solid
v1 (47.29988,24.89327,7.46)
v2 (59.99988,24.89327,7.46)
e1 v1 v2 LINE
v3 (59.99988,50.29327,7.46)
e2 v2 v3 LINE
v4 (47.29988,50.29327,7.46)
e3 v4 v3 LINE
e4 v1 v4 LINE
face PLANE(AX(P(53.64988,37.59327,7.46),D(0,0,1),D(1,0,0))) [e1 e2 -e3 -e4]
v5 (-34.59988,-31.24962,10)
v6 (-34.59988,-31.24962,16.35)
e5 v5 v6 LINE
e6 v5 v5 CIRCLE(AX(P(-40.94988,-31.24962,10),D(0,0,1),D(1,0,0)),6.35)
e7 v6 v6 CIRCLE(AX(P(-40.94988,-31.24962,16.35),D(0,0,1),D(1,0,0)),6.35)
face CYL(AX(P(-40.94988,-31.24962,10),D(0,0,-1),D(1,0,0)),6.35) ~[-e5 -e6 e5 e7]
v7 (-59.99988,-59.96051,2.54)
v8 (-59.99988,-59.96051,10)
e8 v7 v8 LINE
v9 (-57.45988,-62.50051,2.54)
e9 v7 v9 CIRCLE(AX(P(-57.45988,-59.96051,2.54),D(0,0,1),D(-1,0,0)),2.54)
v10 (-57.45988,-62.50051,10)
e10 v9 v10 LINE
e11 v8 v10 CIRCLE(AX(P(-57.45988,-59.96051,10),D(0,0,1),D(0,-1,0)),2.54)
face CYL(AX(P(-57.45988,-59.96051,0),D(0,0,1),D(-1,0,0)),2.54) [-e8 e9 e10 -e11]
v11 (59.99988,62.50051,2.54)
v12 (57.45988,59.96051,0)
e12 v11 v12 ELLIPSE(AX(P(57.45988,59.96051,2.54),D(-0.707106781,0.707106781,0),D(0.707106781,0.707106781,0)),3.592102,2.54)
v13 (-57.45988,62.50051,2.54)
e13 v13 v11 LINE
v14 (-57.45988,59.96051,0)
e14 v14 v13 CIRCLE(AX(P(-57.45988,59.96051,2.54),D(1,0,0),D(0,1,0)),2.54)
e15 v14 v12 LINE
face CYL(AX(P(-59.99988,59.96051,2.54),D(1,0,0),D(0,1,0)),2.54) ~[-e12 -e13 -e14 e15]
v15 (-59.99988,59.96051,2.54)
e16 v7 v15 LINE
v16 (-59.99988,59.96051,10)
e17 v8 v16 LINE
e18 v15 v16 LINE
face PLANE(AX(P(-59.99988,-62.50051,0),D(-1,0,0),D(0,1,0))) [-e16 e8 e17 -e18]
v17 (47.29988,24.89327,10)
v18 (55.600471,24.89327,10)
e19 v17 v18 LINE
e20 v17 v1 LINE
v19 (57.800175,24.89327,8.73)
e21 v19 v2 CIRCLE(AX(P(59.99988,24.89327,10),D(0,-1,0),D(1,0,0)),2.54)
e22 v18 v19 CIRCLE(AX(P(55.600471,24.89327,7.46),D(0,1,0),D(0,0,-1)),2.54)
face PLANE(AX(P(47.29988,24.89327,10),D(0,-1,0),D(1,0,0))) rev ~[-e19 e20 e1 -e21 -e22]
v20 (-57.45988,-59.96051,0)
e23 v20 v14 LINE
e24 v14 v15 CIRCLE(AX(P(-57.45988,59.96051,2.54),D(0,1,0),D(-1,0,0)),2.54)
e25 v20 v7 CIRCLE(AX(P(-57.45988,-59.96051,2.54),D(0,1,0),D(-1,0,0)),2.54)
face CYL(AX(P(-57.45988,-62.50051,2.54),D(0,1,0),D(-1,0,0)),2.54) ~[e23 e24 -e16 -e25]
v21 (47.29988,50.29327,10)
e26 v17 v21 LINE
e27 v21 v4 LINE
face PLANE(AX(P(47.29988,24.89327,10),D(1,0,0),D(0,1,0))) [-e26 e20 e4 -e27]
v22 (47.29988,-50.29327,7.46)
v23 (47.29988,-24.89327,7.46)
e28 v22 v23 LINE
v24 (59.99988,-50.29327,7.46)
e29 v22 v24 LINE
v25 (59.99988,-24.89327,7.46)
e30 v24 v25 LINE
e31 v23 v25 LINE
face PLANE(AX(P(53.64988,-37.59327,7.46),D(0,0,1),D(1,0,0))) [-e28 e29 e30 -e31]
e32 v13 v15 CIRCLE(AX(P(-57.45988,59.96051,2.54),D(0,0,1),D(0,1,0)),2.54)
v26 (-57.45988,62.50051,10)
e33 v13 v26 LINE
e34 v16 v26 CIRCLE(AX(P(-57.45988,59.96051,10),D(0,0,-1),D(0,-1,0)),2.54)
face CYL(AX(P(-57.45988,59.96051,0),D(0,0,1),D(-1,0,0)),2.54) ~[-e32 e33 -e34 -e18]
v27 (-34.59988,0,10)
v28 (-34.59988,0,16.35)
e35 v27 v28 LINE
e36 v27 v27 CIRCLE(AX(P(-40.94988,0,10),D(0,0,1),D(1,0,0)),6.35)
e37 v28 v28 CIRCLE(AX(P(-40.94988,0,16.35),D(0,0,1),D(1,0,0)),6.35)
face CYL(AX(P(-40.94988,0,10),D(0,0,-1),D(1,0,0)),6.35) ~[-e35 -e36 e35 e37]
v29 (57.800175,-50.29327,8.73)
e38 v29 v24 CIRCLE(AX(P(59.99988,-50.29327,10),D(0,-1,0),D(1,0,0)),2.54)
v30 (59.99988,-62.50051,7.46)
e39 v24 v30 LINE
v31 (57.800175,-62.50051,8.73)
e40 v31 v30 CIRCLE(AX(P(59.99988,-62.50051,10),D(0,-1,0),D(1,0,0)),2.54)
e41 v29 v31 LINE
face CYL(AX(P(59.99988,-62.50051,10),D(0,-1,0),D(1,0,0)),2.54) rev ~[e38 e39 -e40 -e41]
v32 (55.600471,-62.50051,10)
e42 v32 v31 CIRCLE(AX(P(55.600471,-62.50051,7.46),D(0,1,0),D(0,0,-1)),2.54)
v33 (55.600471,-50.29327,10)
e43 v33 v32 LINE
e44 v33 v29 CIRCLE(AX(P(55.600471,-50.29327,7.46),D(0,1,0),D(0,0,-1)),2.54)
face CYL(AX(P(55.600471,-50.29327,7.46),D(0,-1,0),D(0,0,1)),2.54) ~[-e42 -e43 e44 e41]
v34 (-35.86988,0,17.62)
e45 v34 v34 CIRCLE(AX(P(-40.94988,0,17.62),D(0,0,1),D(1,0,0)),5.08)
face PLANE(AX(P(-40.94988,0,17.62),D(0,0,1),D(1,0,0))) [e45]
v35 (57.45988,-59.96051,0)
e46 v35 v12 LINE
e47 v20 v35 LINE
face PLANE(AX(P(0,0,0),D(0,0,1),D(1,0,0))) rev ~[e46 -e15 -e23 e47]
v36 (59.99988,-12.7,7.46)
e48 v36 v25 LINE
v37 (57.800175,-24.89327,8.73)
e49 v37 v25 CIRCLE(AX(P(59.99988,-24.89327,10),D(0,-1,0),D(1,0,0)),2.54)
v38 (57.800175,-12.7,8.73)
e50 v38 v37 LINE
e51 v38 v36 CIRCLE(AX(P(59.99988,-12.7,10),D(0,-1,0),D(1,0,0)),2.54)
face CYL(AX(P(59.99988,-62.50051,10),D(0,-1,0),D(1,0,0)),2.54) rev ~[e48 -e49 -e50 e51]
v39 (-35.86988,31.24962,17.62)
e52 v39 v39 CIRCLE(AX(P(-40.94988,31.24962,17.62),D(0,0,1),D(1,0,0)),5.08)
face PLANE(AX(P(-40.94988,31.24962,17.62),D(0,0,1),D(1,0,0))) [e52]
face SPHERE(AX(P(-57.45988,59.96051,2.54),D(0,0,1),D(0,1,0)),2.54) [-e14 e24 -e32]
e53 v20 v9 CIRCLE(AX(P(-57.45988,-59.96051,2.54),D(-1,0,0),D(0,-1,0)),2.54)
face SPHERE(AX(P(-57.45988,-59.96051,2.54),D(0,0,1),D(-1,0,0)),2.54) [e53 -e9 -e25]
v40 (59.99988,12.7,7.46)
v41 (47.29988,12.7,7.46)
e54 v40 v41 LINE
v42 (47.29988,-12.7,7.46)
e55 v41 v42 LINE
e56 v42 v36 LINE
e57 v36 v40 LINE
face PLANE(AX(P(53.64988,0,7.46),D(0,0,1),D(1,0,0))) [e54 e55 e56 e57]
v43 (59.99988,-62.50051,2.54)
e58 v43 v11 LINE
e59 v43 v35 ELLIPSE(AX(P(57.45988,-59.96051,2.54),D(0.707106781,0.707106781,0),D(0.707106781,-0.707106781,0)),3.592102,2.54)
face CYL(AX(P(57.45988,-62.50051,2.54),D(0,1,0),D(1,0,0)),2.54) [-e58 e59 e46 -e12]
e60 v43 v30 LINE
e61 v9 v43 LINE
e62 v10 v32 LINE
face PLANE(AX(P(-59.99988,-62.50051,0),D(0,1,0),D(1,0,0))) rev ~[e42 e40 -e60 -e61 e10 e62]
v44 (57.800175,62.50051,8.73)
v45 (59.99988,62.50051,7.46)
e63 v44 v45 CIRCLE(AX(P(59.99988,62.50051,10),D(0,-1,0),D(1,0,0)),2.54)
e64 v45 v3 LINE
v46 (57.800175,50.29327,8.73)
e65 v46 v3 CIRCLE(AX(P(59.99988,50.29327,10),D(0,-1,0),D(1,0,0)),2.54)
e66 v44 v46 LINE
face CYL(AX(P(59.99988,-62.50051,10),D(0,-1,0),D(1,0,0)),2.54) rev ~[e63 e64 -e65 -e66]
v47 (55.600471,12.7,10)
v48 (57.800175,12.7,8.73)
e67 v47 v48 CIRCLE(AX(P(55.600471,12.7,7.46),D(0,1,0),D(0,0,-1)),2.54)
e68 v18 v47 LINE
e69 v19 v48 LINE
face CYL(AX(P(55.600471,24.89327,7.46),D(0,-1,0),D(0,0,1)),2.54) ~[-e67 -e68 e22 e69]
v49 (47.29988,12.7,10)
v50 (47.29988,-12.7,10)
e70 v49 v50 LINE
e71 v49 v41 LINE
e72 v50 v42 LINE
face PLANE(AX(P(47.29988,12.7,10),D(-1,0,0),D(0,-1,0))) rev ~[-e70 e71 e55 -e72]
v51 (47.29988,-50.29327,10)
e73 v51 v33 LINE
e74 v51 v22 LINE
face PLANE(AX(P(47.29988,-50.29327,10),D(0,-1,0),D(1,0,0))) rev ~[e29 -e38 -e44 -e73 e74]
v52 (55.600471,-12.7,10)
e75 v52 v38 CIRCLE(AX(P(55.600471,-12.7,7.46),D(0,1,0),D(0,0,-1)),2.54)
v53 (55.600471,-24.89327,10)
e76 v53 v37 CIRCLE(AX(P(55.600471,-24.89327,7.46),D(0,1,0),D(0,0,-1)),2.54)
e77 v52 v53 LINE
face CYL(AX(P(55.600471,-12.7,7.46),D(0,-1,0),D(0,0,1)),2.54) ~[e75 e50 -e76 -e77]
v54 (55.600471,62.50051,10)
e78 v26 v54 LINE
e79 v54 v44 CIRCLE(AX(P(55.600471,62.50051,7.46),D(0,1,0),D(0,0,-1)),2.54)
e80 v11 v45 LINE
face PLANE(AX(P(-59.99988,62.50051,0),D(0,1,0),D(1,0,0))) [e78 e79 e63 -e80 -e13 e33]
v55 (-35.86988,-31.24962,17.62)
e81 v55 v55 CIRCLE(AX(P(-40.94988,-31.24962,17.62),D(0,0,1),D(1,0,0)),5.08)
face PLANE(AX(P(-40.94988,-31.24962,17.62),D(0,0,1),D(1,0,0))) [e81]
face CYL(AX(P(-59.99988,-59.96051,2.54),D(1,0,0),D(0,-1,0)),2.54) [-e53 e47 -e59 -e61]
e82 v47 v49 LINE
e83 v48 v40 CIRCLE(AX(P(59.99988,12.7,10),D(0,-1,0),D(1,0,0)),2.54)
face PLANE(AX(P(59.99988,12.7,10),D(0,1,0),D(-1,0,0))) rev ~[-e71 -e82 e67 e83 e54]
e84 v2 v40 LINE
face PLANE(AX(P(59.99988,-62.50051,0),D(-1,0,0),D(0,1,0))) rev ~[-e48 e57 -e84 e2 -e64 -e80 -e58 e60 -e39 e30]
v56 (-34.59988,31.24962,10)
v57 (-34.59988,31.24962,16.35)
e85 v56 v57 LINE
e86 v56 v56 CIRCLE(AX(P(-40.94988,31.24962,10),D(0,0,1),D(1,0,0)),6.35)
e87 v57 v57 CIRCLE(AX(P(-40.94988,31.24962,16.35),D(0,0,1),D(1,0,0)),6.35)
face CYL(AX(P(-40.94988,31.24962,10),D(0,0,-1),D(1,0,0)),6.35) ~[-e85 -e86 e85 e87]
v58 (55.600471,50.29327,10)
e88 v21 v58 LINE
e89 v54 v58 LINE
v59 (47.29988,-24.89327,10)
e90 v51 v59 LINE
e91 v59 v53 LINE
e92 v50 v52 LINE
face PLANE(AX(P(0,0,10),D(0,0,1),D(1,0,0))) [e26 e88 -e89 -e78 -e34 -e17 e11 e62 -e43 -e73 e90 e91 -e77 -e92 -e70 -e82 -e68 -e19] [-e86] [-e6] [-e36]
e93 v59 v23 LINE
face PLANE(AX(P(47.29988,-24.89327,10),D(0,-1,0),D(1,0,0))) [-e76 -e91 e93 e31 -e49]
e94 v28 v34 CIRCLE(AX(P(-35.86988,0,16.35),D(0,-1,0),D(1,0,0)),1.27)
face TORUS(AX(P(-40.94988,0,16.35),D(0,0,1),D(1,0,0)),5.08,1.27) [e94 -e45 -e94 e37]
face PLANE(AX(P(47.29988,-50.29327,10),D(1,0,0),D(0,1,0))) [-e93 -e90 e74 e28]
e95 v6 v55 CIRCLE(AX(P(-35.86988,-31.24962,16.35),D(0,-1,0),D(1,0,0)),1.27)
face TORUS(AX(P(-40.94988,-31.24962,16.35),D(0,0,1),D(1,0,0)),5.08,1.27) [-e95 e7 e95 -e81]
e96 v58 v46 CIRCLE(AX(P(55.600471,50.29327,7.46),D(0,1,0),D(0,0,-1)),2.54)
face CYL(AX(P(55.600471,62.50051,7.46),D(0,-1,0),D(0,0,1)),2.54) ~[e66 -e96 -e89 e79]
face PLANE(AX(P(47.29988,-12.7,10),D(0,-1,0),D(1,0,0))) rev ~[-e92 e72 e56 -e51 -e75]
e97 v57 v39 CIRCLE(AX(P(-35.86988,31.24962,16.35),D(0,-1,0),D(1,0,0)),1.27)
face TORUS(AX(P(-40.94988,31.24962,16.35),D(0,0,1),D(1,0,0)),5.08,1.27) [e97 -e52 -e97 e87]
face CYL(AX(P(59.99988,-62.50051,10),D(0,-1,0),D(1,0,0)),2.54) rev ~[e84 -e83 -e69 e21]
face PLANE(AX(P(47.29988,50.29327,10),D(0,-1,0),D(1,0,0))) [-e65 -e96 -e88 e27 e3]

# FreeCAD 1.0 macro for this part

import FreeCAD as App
import Part
import Sketcher
from FreeCAD import Vector
Q = App.Units.Quantity


def edges_at(feature, points):
    """Names of the edges that pass closest to the given points."""
    edges = feature.Shape.Edges
    near = lambda p: min(range(len(edges)), key=lambda i: edges[i].distToShape(Part.Vertex(*p))[0])
    return sorted({f"Edge{near(p) + 1}" for p in points})


def add_polygon(sketch, points):
    """Adds a closed chain of lines whose ends are joined by coincident constraints."""
    first, n = sketch.GeometryCount, len(points)
    for a, b in zip(points, points[1:] + points[:1]):
        sketch.addGeometry(Part.LineSegment(App.Vector(*a, 0), App.Vector(*b, 0)), False)
    for i in range(n):
        sketch.addConstraint(Sketcher.Constraint("Coincident", first + i, 2, first + (i + 1) % n, 1))

doc = App.newDocument("Part")
body = doc.addObject("PartDesign::Body", "Body")

# Sketch on XY plane
sketch1 = body.newObject("Sketcher::SketchObject", "Sketch")
sketch1.AttachmentSupport = (doc.getObject("XY_Plane"), [""])
sketch1.MapMode = "FlatFace"
add_polygon(sketch1, [(-60, 63), (-60, -63), (60, -63), (60, 63)])  # lines 0-3
sketch1.addConstraint([
    Sketcher.Constraint("Vertical", 0),
    Sketcher.Constraint("Horizontal", 1),
    Sketcher.Constraint("Vertical", 2),
    Sketcher.Constraint("Horizontal", 3),
    Sketcher.Constraint("Symmetric", 0, 2, 2, 2, -1, 1),
    Sketcher.Constraint("DistanceX", 1, 1, 1, 2, Q("4.7244 in")),
    Sketcher.Constraint("DistanceY", 0, 2, 0, 1, Q("4.9213 in")),
])
pad1 = body.newObject("PartDesign::Pad", "Pad")
pad1.Profile = sketch1
pad1.Length = 10

# Sketch on XY plane
sketch2 = body.newObject("Sketcher::SketchObject", "Sketch001")
sketch2.AttachmentSupport = (doc.getObject("XY_Plane"), [""])
sketch2.MapMode = "FlatFace"
sketch2.AttachmentOffset = App.Placement(Vector(0, 0, 10), App.Rotation())
add_polygon(sketch2, [(47, -25), (47, -50), (60, -50), (60, -25)])  # lines 0-3
add_polygon(sketch2, [(47, -13), (60, -13), (60, 13), (47, 13)])  # lines 4-7
add_polygon(sketch2, [(47, 50), (47, 25), (60, 25), (60, 50)])  # lines 8-11
sketch2.addConstraint([
    Sketcher.Constraint("Vertical", 0),
    Sketcher.Constraint("Horizontal", 1),
    Sketcher.Constraint("Vertical", 2),
    Sketcher.Constraint("Horizontal", 3),
    Sketcher.Constraint("Horizontal", 4),
    Sketcher.Constraint("Vertical", 5),
    Sketcher.Constraint("Horizontal", 6),
    Sketcher.Constraint("Vertical", 7),
    Sketcher.Constraint("Vertical", 8),
    Sketcher.Constraint("Horizontal", 9),
    Sketcher.Constraint("Vertical", 10),
    Sketcher.Constraint("Horizontal", 11),
    Sketcher.Constraint("Symmetric", 3, 2, 8, 2, -1),
    Sketcher.Constraint("Symmetric", 1, 2, 10, 2, -1),
    Sketcher.Constraint("Vertical", 2, 2, 4, 2),
    Sketcher.Constraint("Vertical", 3, 2, 6, 2),
    Sketcher.Constraint("Equal", 2, 5),
    Sketcher.Constraint("DistanceY", 0, 2, 0, 1, Q("1 in")),
    Sketcher.Constraint("DistanceX", 1, 1, 1, 2, Q("0.5 in")),
    Sketcher.Constraint("DistanceY", 4, 2, -1, 1, Q("0.5 in")),
    Sketcher.Constraint("DistanceX", -1, 1, 0, 2, Q("1.8622 in")),
    Sketcher.Constraint("DistanceY", 3, 2, 8, 2, Q("1.9601 in")),
])
pocket1 = body.newObject("PartDesign::Pocket", "Pocket")
pocket1.Profile = sketch2
pocket1.Length = Q("0.1 in")

# Sketch on XY plane
sketch3 = body.newObject("Sketcher::SketchObject", "Sketch002")
sketch3.AttachmentSupport = (doc.getObject("XY_Plane"), [""])
sketch3.MapMode = "FlatFace"
sketch3.AttachmentOffset = App.Placement(Vector(0, 0, 10), App.Rotation())
sketch3.addGeometry([
    Part.Circle(Vector(-41, 0, 0), Vector(0, 0, 1), 6),
    Part.Circle(Vector(-41, -31, 0), Vector(0, 0, 1), 6),
    Part.Circle(Vector(-41, 31, 0), Vector(0, 0, 1), 6),
], False)
sketch3.addConstraint([
    Sketcher.Constraint("Equal", 0, 1),
    Sketcher.Constraint("Equal", 1, 2),
    Sketcher.Constraint("Symmetric", 1, 3, 2, 3, -1),
    Sketcher.Constraint("PointOnObject", 0, 3, -1),
    Sketcher.Constraint("Vertical", 0, 3, 1, 3),
    Sketcher.Constraint("Diameter", 0, Q("0.5 in")),
    Sketcher.Constraint("DistanceX", 0, 3, -1, 1, Q("1.6122 in")),
    Sketcher.Constraint("DistanceY", 1, 3, -1, 1, Q("1.2303 in")),
])
pad2 = body.newObject("PartDesign::Pad", "Pad001")
pad2.Profile = sketch3
pad2.Length = Q("0.3 in")
doc.recompute()

fillet = body.newObject("PartDesign::Fillet", "Fillet")
fillet.Base = (pad2, edges_at(pad2, [(-47.3, -31.25, 17.62), (-47.3, 0, 17.62), (-47.3, 31.25, 17.62)]))
fillet.Radius = Q("0.05 in")
doc.recompute()

fillet2 = body.newObject("PartDesign::Fillet", "Fillet001")
fillet2.Base = (fillet, edges_at(fillet, [
    (-60, 62.501, 5),
    (-60, -62.501, 5),
    (0, 62.501, 0),
    (-60, 0, 0),
    (0, -62.501, 0),
    (60, 0, 0),
]))
fillet2.Radius = Q("0.1 in")

# Sketch on XZ plane
sketch4 = body.newObject("Sketcher::SketchObject", "Sketch003")
sketch4.AttachmentSupport = (doc.getObject("XZ_Plane"), [""])
sketch4.MapMode = "FlatFace"
sketch4.AttachmentOffset = App.Placement(Vector(0, 0, 62.50051), App.Rotation())
sketch4.addGeometry(Part.Circle(Vector(60, 10, 0), Vector(0, 0, 1), 2.5), False)
sketch4.addConstraint([
    Sketcher.Constraint("Diameter", 0, Q("0.2 in")),
    Sketcher.Constraint("DistanceX", -1, 1, 0, 3, Q("2.3622 in")),
    Sketcher.Constraint("DistanceY", -1, 1, 0, 3, 10.0),
])
pocket2 = body.newObject("PartDesign::Pocket", "Pocket001")
pocket2.Profile = sketch4
pocket2.Type = "ThroughAll"
doc.recompute()

fillet3 = body.newObject("PartDesign::Fillet", "Fillet002")
fillet3.Base = (pocket2, edges_at(pocket2, [
    (57.46, 56.397, 10),
    (57.46, 18.797, 10),
    (57.46, -18.797, 10),
    (57.46, -56.397, 10),
]))
fillet3.Radius = Q("0.1 in")

doc.recompute()
